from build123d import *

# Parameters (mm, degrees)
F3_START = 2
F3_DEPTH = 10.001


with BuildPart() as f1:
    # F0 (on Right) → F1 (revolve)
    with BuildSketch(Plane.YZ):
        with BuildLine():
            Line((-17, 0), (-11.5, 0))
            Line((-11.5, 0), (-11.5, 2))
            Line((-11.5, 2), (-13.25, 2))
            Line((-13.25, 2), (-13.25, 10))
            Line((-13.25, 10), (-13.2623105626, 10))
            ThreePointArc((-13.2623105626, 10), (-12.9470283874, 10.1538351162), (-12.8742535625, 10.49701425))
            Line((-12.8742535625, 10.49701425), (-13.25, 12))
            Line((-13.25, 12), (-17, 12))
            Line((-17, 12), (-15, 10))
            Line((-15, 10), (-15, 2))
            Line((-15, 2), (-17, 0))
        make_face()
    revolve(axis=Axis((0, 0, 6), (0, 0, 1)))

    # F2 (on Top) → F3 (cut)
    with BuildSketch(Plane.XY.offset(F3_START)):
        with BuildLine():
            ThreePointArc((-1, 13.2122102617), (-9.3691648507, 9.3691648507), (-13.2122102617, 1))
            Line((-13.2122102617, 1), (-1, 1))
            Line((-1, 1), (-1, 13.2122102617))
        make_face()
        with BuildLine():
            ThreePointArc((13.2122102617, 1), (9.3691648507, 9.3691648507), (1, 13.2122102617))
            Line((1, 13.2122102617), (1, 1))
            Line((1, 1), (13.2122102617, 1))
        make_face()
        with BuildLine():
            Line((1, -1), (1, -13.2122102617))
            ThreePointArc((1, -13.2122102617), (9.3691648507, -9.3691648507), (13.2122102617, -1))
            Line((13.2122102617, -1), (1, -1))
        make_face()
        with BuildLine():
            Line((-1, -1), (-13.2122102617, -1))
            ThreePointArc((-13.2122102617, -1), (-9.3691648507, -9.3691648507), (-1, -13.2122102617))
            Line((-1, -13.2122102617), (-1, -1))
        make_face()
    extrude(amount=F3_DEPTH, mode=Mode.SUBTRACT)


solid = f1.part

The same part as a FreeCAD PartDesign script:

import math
import FreeCAD as App
import Part
import Sketcher

V = App.Vector
Q = App.Units.Quantity

doc = App.newDocument("Part")
body = doc.addObject("PartDesign::Body", "Body")

# Sketch on YZ plane
sketch1 = body.newObject("Sketcher::SketchObject", "Sketch")
sketch1.AttachmentSupport = (doc.getObject("YZ_Plane"), [""])
sketch1.MapMode = "FlatFace"
sketch1.addGeometry([
    Part.LineSegment(V(-17, 0, 0), V(-11.5, 0, 0)),  # 0
    Part.LineSegment(V(-11.5, 0, 0), V(-11.5, 2, 0)),  # 1
    Part.LineSegment(V(-11.5, 2, 0), V(-13.25, 2, 0)),  # 2
    Part.LineSegment(V(-13.25, 2, 0), V(-13.25, 10, 0)),  # 3
    Part.LineSegment(V(-13.25, 10, 0), V(-13.262, 10, 0)),  # 4
    Part.ArcOfCircle(Part.Circle(V(-13.262, 10.4, 0), V(0, 0, 1), 0.4), math.radians(-90), math.radians(14)),  # 5
    Part.LineSegment(V(-12.874, 10.497, 0), V(-13.25, 12, 0)),  # 6
    Part.LineSegment(V(-13.25, 12, 0), V(-17, 12, 0)),  # 7
    Part.LineSegment(V(-17, 12, 0), V(-15, 10, 0)),  # 8
    Part.LineSegment(V(-15, 10, 0), V(-15, 2, 0)),  # 9
    Part.LineSegment(V(-15, 2, 0), V(-17, 0, 0)),  # 10
], False)
sketch1.addConstraint([
    Sketcher.Constraint("Coincident", 0, 2, 1, 1),
    Sketcher.Constraint("Coincident", 1, 2, 2, 1),
    Sketcher.Constraint("Coincident", 2, 2, 3, 1),
    Sketcher.Constraint("Coincident", 3, 2, 4, 1),
    Sketcher.Constraint("Tangent", 4, 2, 5, 1),
    Sketcher.Constraint("Tangent", 5, 2, 6, 1),
    Sketcher.Constraint("Coincident", 6, 2, 7, 1),
    Sketcher.Constraint("Coincident", 7, 2, 8, 1),
    Sketcher.Constraint("Coincident", 8, 2, 9, 1),
    Sketcher.Constraint("Coincident", 9, 2, 10, 1),
    Sketcher.Constraint("Coincident", 10, 2, 0, 1),
    Sketcher.Constraint("Horizontal", 0),
    Sketcher.Constraint("Vertical", 1),
    Sketcher.Constraint("Horizontal", 2),
    Sketcher.Constraint("Vertical", 3),
    Sketcher.Constraint("Horizontal", 4),
    Sketcher.Constraint("Horizontal", 7),
    Sketcher.Constraint("Vertical", 9),
    Sketcher.Constraint("PointOnObject", 0, 2, -1),
    Sketcher.Constraint("Perpendicular", 8, 10),
    Sketcher.Constraint("Horizontal", 4, 2, 8, 2),
    Sketcher.Constraint("Horizontal", 2, 2, 9, 2),
    Sketcher.Constraint("Vertical", 3, 2, 6, 2),
    Sketcher.Constraint("Vertical", 7, 2, 10, 2),
    Sketcher.Constraint("Equal", 8, 10),
    Sketcher.Constraint("Radius", 5, Q("0.4 mm")),
    Sketcher.Constraint("DistanceY", 1, 1, 1, 2, Q("2 mm")),
    Sketcher.Constraint("DistanceY", 3, 1, 3, 2, Q("8 mm")),
    Sketcher.Constraint("DistanceX", 0, 1, 0, 2, Q("5.5 mm")),
    Sketcher.Constraint("DistanceX", 7, 2, -1, 1, Q("17 mm")),
    Sketcher.Constraint("DistanceX", 2, 2, 2, 1, Q("1.75 mm")),
    Sketcher.Constraint("DistanceX", 4, 2, 4, 1, Q("0.012311 mm")),
])
revolution = body.newObject("PartDesign::Revolution", "Revolution")
revolution.Profile = sketch1
revolution.ReferenceAxis = (sketch1, ["V_Axis"])
revolution.Angle = 360

# Sketch on XY plane
sketch2 = body.newObject("Sketcher::SketchObject", "Sketch001")
sketch2.AttachmentSupport = (doc.getObject("XY_Plane"), [""])
sketch2.MapMode = "FlatFace"
sketch2.AttachmentOffset = App.Placement(V(0, 0, 2), App.Rotation())
sketch2.addGeometry([
    Part.ArcOfCircle(Part.Circle(V(0, 0, 0), V(0, 0, 1), 13), math.radians(94), math.radians(176)),  # 0
    Part.LineSegment(V(-13, 1, 0), V(-1, 1, 0)),  # 1
    Part.LineSegment(V(-1, 1, 0), V(-1, 13, 0)),  # 2
    Part.ArcOfCircle(Part.Circle(V(0, 0, 0), V(0, 0, 1), 13), math.radians(4), math.radians(86)),  # 3
    Part.LineSegment(V(1, 13, 0), V(1, 1, 0)),  # 4
    Part.LineSegment(V(1, 1, 0), V(13, 1, 0)),  # 5
    Part.LineSegment(V(1, -1, 0), V(1, -13, 0)),  # 6
    Part.ArcOfCircle(Part.Circle(V(0, 0, 0), V(0, 0, 1), 13), math.radians(-86), math.radians(-4)),  # 7
    Part.LineSegment(V(13, -1, 0), V(1, -1, 0)),  # 8
    Part.LineSegment(V(-1, -1, 0), V(-13, -1, 0)),  # 9
    Part.ArcOfCircle(Part.Circle(V(0, 0, 0), V(0, 0, 1), 13), math.radians(-176), math.radians(-94)),  # 10
    Part.LineSegment(V(-1, -13, 0), V(-1, -1, 0)),  # 11
], False)
sketch2.addConstraint([
    Sketcher.Constraint("Coincident", 0, 2, 1, 1),
    Sketcher.Constraint("Coincident", 1, 2, 2, 1),
    Sketcher.Constraint("Coincident", 2, 2, 0, 1),
    Sketcher.Constraint("Coincident", 3, 2, 4, 1),
    Sketcher.Constraint("Coincident", 4, 2, 5, 1),
    Sketcher.Constraint("Coincident", 5, 2, 3, 1),
    Sketcher.Constraint("Coincident", 6, 2, 7, 1),
    Sketcher.Constraint("Coincident", 7, 2, 8, 1),
    Sketcher.Constraint("Coincident", 8, 2, 6, 1),
    Sketcher.Constraint("Coincident", 9, 2, 10, 1),
    Sketcher.Constraint("Coincident", 10, 2, 11, 1),
    Sketcher.Constraint("Coincident", 11, 2, 9, 1),
    Sketcher.Constraint("Horizontal", 1),
    Sketcher.Constraint("Vertical", 2),
    Sketcher.Constraint("Vertical", 4),
    Sketcher.Constraint("Horizontal", 5),
    Sketcher.Constraint("Vertical", 6),
    Sketcher.Constraint("Horizontal", 8),
    Sketcher.Constraint("Horizontal", 9),
    Sketcher.Constraint("Vertical", 11),
    Sketcher.Constraint("Coincident", 0, 3, -1, 1),
    Sketcher.Constraint("Coincident", 3, 3, -1, 1),
    Sketcher.Constraint("Coincident", 7, 3, -1, 1),
    Sketcher.Constraint("Coincident", 10, 3, -1, 1),
    Sketcher.Constraint("Equal", 0, 3),
    Sketcher.Constraint("Equal", 3, 7),
    Sketcher.Constraint("Equal", 7, 10),
    Sketcher.Constraint("Symmetric", 1, 2, 8, 2, -1, 1),
    Sketcher.Constraint("Symmetric", 4, 2, 11, 2, -1, 1),
    Sketcher.Constraint("Symmetric", 1, 2, 4, 2, -2),
    Sketcher.Constraint("Equal", 9, 2),
    Sketcher.Constraint("Radius", 0, Q("13.25 mm")),
    Sketcher.Constraint("DistanceY", -1, 1, 0, 2, Q("1 mm")),
])
pocket1 = body.newObject("PartDesign::Pocket", "Pocket")
pocket1.Profile = sketch2
pocket1.Length = 10.001
pocket1.Reversed = True

doc.recompute()
